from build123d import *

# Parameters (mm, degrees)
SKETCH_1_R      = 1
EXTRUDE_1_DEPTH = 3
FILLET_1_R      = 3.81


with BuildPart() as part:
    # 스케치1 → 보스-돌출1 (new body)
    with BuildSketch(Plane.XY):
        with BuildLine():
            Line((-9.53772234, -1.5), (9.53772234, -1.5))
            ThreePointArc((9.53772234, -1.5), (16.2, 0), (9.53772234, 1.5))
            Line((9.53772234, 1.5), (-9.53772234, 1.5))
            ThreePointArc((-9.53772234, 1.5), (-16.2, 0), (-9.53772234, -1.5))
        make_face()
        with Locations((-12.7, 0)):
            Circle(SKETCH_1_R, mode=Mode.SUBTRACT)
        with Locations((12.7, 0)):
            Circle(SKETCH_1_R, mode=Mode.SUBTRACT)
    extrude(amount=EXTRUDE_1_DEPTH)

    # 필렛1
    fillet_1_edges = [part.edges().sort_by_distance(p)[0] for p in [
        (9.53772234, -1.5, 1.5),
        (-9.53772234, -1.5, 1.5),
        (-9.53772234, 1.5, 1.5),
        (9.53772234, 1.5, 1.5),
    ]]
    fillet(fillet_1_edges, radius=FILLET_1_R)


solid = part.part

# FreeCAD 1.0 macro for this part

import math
import FreeCAD as App
import Part
import Sketcher
Q = App.Units.Quantity


def edges_at(feature, points):
    """Names of the edges that pass closest to the given points."""
    edges = feature.Shape.Edges
    near = lambda p: min(range(len(edges)), key=lambda i: edges[i].distToShape(Part.Vertex(*p))[0])
    return sorted({f"Edge{near(p) + 1}" for p in points})

doc = App.newDocument("Part")
body = doc.addObject("PartDesign::Body", "Body")

sketch1 = doc.addObject("Sketcher::SketchObject", "Sketch")
body.addObject(sketch1)
sketch1.AttachmentSupport = (doc.XY_Plane, [""])
sketch1.MapMode = "FlatFace"
sketch1.addGeometry(Part.LineSegment(App.Vector(-9.5, -1.5, 0), App.Vector(9.5, -1.5, 0)), False)
sketch1.addGeometry(Part.ArcOfCircle(Part.Circle(App.Vector(12.7, 0, 0), App.Vector(0, 0, 1), 3.5), math.radians(-155), math.radians(155)), False)
sketch1.addGeometry(Part.LineSegment(App.Vector(9.5, 1.5, 0), App.Vector(-9.5, 1.5, 0)), False)
sketch1.addGeometry(Part.ArcOfCircle(Part.Circle(App.Vector(-12.7, 0, 0), App.Vector(0, 0, 1), 3.5), math.radians(25), math.radians(335)), False)
sketch1.addGeometry(Part.Circle(App.Vector(-12.7, 0, 0), App.Vector(0, 0, 1), 1), False)
sketch1.addGeometry(Part.Circle(App.Vector(12.7, 0, 0), App.Vector(0, 0, 1), 1), False)
sketch1.addConstraint(Sketcher.Constraint("Coincident", 0, 2, 1, 1))
sketch1.addConstraint(Sketcher.Constraint("Coincident", 1, 2, 2, 1))
sketch1.addConstraint(Sketcher.Constraint("Coincident", 2, 2, 3, 1))
sketch1.addConstraint(Sketcher.Constraint("Coincident", 3, 2, 0, 1))
sketch1.addConstraint(Sketcher.Constraint("Horizontal", 0))
sketch1.addConstraint(Sketcher.Constraint("Horizontal", 2))
sketch1.addConstraint(Sketcher.Constraint("Coincident", 4, 3, 3, 3))
sketch1.addConstraint(Sketcher.Constraint("Coincident", 5, 3, 1, 3))
sketch1.addConstraint(Sketcher.Constraint("Equal", 1, 3))
sketch1.addConstraint(Sketcher.Constraint("Equal", 4, 5))
sketch1.addConstraint(Sketcher.Constraint("Symmetric", 1, 3, 3, 3, -1, 1))
sketch1.addConstraint(Sketcher.Constraint("Symmetric", 0, 2, 1, 2, -1))
sketch1.addConstraint(Sketcher.Constraint("Diameter", 4, Q("2 mm")))
sketch1.addConstraint(Sketcher.Constraint("Radius", 1, Q("3.5 mm")))
sketch1.addConstraint(Sketcher.Constraint("DistanceY", 0, 2, 1, 2, Q("3 mm")))
sketch1.addConstraint(Sketcher.Constraint("DistanceX", -1, 1, 1, 3, Q("12.7 mm")))
pad1 = doc.addObject("PartDesign::Pad", "Pad")
body.addObject(pad1)
pad1.Profile = sketch1
pad1.Length = 3
doc.recompute()

fillet = doc.addObject("PartDesign::Fillet", "Fillet")
body.addObject(fillet)
fillet.Base = (pad1, edges_at(pad1, [
    (9.538, -1.5, 1.5),
    (-9.538, -1.5, 1.5),
    (-9.538, 1.5, 1.5),
    (9.538, 1.5, 1.5),
]))
fillet.Radius = 3.81

doc.recompute()
